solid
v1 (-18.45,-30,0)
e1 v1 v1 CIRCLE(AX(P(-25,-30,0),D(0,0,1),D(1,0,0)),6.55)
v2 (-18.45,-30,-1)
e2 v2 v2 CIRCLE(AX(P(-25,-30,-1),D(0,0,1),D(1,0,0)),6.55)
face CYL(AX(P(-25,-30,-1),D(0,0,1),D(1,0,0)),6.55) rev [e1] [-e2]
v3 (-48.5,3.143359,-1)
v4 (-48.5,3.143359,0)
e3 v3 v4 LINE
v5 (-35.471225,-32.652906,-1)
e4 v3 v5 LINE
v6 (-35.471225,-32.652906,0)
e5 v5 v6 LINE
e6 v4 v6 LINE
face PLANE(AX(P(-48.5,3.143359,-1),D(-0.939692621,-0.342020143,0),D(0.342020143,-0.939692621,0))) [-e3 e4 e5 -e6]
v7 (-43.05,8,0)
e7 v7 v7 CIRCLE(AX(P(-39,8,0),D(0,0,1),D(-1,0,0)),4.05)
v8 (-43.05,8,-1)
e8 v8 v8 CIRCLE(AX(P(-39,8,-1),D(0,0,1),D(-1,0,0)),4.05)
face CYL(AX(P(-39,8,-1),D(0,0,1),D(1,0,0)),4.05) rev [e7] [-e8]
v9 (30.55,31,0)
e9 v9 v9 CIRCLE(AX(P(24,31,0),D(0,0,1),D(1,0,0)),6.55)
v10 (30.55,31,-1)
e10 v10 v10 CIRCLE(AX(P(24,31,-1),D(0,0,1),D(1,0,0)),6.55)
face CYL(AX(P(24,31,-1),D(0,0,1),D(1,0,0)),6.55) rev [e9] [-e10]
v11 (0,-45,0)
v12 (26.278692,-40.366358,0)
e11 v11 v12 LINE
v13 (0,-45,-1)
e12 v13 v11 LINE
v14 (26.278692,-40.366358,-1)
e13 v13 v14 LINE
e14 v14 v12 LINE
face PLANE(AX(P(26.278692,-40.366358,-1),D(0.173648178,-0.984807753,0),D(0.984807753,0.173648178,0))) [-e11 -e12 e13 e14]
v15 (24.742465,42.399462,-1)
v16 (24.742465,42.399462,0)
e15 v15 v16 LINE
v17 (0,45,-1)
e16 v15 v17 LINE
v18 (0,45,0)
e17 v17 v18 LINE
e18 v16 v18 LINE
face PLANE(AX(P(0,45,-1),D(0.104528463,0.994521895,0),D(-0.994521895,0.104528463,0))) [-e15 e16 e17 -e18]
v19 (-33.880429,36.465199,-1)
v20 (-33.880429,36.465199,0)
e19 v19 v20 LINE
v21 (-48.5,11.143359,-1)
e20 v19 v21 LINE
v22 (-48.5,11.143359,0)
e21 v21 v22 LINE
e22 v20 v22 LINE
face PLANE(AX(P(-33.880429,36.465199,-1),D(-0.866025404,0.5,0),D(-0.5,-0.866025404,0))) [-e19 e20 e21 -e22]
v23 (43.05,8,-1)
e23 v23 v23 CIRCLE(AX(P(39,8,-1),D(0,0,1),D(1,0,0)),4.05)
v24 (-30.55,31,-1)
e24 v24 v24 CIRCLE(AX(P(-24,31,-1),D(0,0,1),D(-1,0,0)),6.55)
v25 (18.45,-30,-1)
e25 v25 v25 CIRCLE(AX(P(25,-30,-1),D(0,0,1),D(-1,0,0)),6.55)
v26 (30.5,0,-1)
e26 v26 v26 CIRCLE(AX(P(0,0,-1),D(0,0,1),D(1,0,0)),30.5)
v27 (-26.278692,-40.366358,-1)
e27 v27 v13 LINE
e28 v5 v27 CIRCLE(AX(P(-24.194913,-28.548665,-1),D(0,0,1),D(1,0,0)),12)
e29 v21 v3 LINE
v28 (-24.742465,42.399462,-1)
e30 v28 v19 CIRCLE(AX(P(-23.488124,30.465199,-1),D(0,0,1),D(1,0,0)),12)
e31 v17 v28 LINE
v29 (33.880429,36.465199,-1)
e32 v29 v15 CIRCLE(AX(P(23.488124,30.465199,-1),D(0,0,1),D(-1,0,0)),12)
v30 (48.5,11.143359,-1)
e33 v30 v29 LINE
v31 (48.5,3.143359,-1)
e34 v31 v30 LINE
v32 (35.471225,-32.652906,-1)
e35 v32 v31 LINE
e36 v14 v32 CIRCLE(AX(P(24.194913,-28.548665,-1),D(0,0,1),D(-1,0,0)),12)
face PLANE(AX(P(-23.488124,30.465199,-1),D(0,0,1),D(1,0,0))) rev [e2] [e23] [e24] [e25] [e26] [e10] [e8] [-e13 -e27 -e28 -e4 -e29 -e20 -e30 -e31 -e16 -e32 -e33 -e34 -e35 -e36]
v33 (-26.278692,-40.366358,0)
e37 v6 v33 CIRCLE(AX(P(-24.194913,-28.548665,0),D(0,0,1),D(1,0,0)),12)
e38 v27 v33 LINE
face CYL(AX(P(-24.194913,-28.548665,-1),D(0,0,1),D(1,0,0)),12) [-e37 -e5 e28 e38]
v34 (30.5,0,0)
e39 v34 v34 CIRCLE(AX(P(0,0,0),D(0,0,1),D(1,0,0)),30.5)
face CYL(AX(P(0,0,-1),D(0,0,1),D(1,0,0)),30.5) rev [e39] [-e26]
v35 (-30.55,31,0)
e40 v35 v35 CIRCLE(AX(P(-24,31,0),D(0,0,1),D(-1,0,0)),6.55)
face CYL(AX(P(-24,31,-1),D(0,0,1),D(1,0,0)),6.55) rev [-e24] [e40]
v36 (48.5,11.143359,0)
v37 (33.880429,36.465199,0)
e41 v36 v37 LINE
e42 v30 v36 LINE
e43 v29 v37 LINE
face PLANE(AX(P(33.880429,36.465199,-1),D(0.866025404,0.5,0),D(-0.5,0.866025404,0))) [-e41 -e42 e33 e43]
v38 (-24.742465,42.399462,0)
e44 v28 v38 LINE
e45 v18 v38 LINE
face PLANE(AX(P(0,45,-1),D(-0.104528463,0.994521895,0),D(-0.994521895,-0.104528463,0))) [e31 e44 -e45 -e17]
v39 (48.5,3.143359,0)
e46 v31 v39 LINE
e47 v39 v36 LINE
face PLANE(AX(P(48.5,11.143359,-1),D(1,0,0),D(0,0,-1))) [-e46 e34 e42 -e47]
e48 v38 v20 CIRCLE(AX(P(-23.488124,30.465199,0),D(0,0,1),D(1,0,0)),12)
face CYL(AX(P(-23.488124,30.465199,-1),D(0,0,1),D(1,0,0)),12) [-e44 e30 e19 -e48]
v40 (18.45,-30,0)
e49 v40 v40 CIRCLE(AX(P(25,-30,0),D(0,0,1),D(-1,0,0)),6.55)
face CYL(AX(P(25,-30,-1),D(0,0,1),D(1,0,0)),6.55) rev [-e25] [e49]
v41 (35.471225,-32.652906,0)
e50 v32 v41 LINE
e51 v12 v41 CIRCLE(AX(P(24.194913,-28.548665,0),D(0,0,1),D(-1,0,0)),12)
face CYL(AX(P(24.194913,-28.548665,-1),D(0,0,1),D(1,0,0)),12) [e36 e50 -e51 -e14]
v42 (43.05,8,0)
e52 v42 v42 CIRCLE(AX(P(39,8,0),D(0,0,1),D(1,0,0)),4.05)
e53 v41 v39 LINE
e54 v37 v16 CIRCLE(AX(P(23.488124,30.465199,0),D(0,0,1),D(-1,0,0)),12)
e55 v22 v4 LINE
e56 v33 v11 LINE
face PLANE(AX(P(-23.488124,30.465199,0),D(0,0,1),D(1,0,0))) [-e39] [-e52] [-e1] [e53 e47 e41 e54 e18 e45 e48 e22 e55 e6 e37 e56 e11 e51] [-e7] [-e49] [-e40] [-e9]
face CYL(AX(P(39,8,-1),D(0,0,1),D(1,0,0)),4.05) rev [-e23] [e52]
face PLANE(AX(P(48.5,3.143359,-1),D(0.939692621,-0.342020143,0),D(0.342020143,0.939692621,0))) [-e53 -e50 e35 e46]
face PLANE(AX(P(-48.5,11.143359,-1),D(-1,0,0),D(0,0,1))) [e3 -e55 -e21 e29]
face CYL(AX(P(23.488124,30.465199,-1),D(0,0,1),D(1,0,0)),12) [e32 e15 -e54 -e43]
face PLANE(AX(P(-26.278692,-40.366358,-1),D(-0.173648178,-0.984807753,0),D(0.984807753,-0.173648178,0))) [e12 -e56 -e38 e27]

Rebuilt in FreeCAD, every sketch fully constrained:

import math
import FreeCAD as App
import Part
import Sketcher

V = App.Vector
Q = App.Units.Quantity

doc = App.newDocument("Part")
params = doc.addObject("Spreadsheet::Sheet", "Params")
for row, (alias, value) in enumerate([
    ("sketch1_diameter", "61 mm"),
    ("sketch1_radius", "12 mm"),
    ("sketch1_diameter2", "13.1 mm"),
    ("sketch1_diameter3", "8.1 mm"),
    ("sketch1_height", "8 mm"),
    ("pad1_length", "1 mm"),
], start=1):
    params.set(f"A{row}", alias)
    params.set(f"B{row}", "=" + value)
    params.setAlias(f"B{row}", alias)

body = doc.addObject("PartDesign::Body", "Body")

sketch1 = body.newObject("Sketcher::SketchObject", "Sketch")
sketch1.AttachmentSupport = (doc.getObject("XY_Plane"), [""])
sketch1.MapMode = "FlatFace"
sketch1.addGeometry([
    Part.LineSegment(V(24.742465, 42.399462, 0), V(0, 45, 0)),
    Part.LineSegment(V(0, 45, 0), V(-24.742465, 42.399462, 0)),
    Part.ArcOfCircle(Part.Circle(V(-23.488124, 30.465199, 0), V(0, 0, 1), 12), math.radians(96), math.radians(150)),
    Part.LineSegment(V(-33.880429, 36.465199, 0), V(-48.5, 11.143359, 0)),
    Part.LineSegment(V(-48.5, 11.143359, 0), V(-48.5, 3.143359, 0)),
    Part.LineSegment(V(-48.5, 3.143359, 0), V(-35.471225, -32.652906, 0)),
    Part.ArcOfCircle(Part.Circle(V(-24.194913, -28.548665, 0), V(0, 0, 1), 12), math.radians(-160), math.radians(-100)),
    Part.LineSegment(V(-26.278692, -40.366358, 0), V(0, -45, 0)),
    Part.LineSegment(V(0, -45, 0), V(26.278692, -40.366358, 0)),
    Part.ArcOfCircle(Part.Circle(V(24.194913, -28.548665, 0), V(0, 0, 1), 12), math.radians(-80), math.radians(-20)),
    Part.LineSegment(V(35.471225, -32.652906, 0), V(48.5, 3.143359, 0)),
    Part.LineSegment(V(48.5, 3.143359, 0), V(48.5, 11.143359, 0)),
    Part.LineSegment(V(48.5, 11.143359, 0), V(33.880429, 36.465199, 0)),
    Part.ArcOfCircle(Part.Circle(V(23.488124, 30.465199, 0), V(0, 0, 1), 12), math.radians(30), math.radians(84)),
    Part.Circle(V(25, -30, 0), V(0, 0, 1), 6.55),
    Part.Circle(V(0, 0, 0), V(0, 0, 1), 30.5),
    Part.Circle(V(-25, -30, 0), V(0, 0, 1), 6.55),
    Part.Circle(V(39, 8, 0), V(0, 0, 1), 4.05),
    Part.Circle(V(24, 31, 0), V(0, 0, 1), 6.55),
    Part.Circle(V(-39, 8, 0), V(0, 0, 1), 4.05),
    Part.Circle(V(-24, 31, 0), V(0, 0, 1), 6.55),
], False)
sketch1.addConstraint([
    Sketcher.Constraint("Coincident", 0, 2, 1, 1),
    Sketcher.Constraint("Tangent", 1, 2, 2, 1),
    Sketcher.Constraint("Tangent", 2, 2, 3, 1),
    Sketcher.Constraint("Coincident", 3, 2, 4, 1),
    Sketcher.Constraint("Coincident", 4, 2, 5, 1),
    Sketcher.Constraint("Tangent", 5, 2, 6, 1),
    Sketcher.Constraint("Tangent", 6, 2, 7, 1),
    Sketcher.Constraint("Coincident", 7, 2, 8, 1),
    Sketcher.Constraint("Tangent", 8, 2, 9, 1),
    Sketcher.Constraint("Tangent", 9, 2, 10, 1),
    Sketcher.Constraint("Coincident", 10, 2, 11, 1),
    Sketcher.Constraint("Coincident", 11, 2, 12, 1),
    Sketcher.Constraint("Tangent", 12, 2, 13, 1),
    Sketcher.Constraint("Tangent", 13, 2, 0, 1),
    Sketcher.Constraint("Vertical", 4),
    Sketcher.Constraint("Vertical", 11),
    Sketcher.Constraint("Coincident", 15, 3, -1, 1),
    Sketcher.Constraint("Equal", 2, 6),
    Sketcher.Constraint("Equal", 6, 9),
    Sketcher.Constraint("Equal", 9, 13),
    Sketcher.Constraint("Equal", 14, 16),
    Sketcher.Constraint("Equal", 16, 18),
    Sketcher.Constraint("Equal", 17, 19),
    Sketcher.Constraint("Equal", 18, 20),
    Sketcher.Constraint("Symmetric", 0, 2, 7, 2, -1, 1),
    Sketcher.Constraint("Symmetric", 6, 3, 9, 3, -2),
    Sketcher.Constraint("Symmetric", 2, 3, 13, 3, -2),
    Sketcher.Constraint("Symmetric", 14, 3, 16, 3, -2),
    Sketcher.Constraint("Symmetric", 17, 3, 19, 3, -2),
    Sketcher.Constraint("Symmetric", 18, 3, 20, 3, -2),
    Sketcher.Constraint("Symmetric", 4, 2, 10, 2, -2),
    Sketcher.Constraint("PointOnObject", 0, 2, -2),
    Sketcher.Constraint("Horizontal", 3, 2, 11, 2),
    Sketcher.Constraint("Diameter", 15, 61.0),
    Sketcher.Constraint("Radius", 2, 12.0),
    Sketcher.Constraint("Diameter", 14, 13.1),
    Sketcher.Constraint("Diameter", 17, 8.1),
    Sketcher.Constraint("DistanceY", 4, 2, 4, 1, 8.0),
    Sketcher.Constraint("Angle", 0, Q("174 deg")),
    Sketcher.Constraint("Angle", 3, Q("-120 deg")),
    Sketcher.Constraint("Angle", 5, Q("-70 deg")),
    Sketcher.Constraint("Angle", 7, Q("-10 deg")),
    Sketcher.Constraint("DistanceX", -1, 1, 14, 3, 25.0),
    Sketcher.Constraint("DistanceY", 14, 3, -1, 1, 30.0),
    Sketcher.Constraint("DistanceX", -1, 1, 17, 3, 39.0),
    Sketcher.Constraint("DistanceY", -1, 1, 17, 3, 8.0),
    Sketcher.Constraint("DistanceX", -1, 1, 18, 3, 24.0),
    Sketcher.Constraint("DistanceY", -1, 1, 18, 3, 31.0),
    Sketcher.Constraint("DistanceY", -1, 1, 0, 2, 45.0),
    Sketcher.Constraint("DistanceX", 3, 2, -1, 1, 48.5),
    Sketcher.Constraint("DistanceY", -1, 1, 2, 3, 30.465199),
])
sketch1.setExpression("Constraints[33]", "Params.sketch1_diameter")
sketch1.setExpression("Constraints[34]", "Params.sketch1_radius")
sketch1.setExpression("Constraints[35]", "Params.sketch1_diameter2")
sketch1.setExpression("Constraints[36]", "Params.sketch1_diameter3")
sketch1.setExpression("Constraints[37]", "Params.sketch1_height")
pad1 = body.newObject("PartDesign::Pad", "Pad")
pad1.Profile = sketch1
pad1.setExpression("Length", "Params.pad1_length")
pad1.Reversed = True

doc.recompute()
